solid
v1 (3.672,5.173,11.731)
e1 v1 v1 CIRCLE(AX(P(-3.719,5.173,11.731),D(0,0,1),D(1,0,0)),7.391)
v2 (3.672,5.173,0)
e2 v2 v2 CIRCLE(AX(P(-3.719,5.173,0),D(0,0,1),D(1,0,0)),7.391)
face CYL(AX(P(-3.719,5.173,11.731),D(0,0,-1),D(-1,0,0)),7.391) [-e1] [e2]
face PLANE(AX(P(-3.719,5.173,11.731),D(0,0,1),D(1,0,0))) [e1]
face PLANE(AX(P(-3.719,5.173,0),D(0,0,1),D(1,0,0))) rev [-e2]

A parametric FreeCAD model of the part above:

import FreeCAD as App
import Part
import Sketcher
from FreeCAD import Vector

doc = App.newDocument("Part")
body = doc.addObject("PartDesign::Body", "Body")

sketch1 = body.newObject("Sketcher::SketchObject", "Sketch")
sketch1.AttachmentSupport = (doc.getObject("XY_Plane"), [""])
sketch1.MapMode = "FlatFace"
sketch1.addGeometry(Part.Circle(Vector(-4, 5, 0), Vector(0, 0, 1), 7), False)
sketch1.addConstraint(Sketcher.Constraint("Diameter", 0, 14.782))
sketch1.addConstraint(Sketcher.Constraint("DistanceX", 0, 3, -1, 1, 3.719))
sketch1.addConstraint(Sketcher.Constraint("DistanceY", -1, 1, 0, 3, 5.173))
pad1 = body.newObject("PartDesign::Pad", "Pad")
pad1.Profile = sketch1
pad1.Length = 11.731

doc.recompute()
